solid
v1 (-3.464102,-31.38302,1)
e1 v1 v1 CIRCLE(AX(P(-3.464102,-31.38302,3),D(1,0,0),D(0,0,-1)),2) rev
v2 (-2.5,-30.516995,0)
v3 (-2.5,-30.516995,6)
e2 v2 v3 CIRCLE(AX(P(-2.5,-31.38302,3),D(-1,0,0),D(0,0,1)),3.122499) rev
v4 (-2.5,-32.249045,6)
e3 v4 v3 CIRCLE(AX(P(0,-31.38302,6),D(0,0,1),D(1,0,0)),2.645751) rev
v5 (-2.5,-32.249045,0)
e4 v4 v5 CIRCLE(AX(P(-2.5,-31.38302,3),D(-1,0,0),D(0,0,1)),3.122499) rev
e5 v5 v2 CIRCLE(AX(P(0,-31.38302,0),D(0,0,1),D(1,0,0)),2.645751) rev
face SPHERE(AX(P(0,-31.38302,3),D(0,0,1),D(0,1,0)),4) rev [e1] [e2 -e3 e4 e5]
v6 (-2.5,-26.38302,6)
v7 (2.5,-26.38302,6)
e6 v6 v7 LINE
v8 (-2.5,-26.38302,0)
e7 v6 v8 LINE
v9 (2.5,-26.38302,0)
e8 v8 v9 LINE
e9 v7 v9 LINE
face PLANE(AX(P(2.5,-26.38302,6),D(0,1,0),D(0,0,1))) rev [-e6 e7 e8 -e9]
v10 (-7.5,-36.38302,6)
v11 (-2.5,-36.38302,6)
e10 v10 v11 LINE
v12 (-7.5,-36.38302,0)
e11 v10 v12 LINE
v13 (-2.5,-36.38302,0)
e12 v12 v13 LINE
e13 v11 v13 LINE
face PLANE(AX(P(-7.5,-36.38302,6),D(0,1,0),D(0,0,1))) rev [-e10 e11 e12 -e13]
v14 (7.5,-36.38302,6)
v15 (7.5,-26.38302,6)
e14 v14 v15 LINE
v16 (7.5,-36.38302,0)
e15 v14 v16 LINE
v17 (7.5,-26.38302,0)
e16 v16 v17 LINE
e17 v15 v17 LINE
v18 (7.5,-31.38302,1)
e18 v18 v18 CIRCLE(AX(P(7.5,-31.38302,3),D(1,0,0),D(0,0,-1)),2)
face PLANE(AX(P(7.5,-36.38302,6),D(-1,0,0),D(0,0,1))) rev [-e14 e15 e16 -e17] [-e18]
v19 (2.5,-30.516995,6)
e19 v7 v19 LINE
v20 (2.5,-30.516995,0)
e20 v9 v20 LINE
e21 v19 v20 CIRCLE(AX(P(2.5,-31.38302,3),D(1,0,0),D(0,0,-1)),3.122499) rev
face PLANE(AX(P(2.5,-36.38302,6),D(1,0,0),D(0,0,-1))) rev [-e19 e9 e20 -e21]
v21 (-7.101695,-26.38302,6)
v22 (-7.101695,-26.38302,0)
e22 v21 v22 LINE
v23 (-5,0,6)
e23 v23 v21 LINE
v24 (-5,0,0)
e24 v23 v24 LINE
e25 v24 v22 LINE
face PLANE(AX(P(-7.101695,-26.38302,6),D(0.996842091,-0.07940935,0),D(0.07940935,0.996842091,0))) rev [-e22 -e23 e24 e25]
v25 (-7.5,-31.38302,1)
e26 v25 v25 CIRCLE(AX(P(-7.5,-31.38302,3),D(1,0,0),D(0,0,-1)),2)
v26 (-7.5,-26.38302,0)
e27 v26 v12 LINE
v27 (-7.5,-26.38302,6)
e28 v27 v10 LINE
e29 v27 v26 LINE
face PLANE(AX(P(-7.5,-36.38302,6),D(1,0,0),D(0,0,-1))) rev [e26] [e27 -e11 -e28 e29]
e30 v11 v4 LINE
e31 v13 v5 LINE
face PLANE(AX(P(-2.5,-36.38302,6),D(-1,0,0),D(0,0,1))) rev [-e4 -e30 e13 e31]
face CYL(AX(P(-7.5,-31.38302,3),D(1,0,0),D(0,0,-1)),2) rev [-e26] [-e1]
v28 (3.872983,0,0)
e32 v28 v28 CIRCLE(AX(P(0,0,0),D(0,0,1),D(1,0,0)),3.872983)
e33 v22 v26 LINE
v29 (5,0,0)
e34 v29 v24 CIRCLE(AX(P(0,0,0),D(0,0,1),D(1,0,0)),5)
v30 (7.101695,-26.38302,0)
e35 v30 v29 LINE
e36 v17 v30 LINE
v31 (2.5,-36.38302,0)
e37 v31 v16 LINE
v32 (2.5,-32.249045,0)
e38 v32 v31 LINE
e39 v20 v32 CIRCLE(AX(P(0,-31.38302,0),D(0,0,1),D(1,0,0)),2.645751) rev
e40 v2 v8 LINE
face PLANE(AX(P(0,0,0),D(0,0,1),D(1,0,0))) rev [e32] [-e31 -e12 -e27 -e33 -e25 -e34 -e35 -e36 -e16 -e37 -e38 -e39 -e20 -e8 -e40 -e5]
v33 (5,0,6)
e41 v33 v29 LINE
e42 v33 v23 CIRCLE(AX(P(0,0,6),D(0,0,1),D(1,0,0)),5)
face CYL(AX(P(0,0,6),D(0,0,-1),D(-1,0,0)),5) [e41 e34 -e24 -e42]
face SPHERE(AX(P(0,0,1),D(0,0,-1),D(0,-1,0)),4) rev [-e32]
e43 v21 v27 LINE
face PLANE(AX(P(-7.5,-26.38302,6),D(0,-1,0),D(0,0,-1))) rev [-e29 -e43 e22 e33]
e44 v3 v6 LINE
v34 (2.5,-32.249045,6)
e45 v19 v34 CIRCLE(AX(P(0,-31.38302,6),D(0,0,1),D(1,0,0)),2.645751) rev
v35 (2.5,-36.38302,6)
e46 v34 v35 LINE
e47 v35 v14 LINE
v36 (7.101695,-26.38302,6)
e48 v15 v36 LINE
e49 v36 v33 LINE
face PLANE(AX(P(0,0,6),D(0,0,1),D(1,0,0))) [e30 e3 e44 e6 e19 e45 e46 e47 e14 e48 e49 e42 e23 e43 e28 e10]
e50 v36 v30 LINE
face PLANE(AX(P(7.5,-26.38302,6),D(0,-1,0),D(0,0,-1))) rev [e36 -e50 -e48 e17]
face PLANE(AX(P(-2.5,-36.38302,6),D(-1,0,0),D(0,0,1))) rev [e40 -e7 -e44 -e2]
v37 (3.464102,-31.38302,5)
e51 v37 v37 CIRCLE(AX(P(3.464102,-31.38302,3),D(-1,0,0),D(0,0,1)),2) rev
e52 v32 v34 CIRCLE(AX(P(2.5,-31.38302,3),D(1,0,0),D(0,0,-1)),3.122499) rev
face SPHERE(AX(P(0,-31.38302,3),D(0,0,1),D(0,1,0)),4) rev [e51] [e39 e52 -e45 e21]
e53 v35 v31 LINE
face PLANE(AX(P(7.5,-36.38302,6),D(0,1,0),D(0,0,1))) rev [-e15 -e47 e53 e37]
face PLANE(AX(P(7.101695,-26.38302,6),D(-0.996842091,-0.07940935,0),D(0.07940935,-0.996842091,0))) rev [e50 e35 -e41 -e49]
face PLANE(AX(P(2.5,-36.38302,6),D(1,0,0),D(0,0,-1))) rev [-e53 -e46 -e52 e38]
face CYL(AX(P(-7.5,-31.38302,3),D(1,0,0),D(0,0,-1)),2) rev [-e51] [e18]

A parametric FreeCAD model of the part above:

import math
import FreeCAD as App
import Part
import Sketcher

V = App.Vector
Q = App.Units.Quantity

doc = App.newDocument("Part")
body = doc.addObject("PartDesign::Body", "Body")

sketch1 = body.newObject("Sketcher::SketchObject", "Sketch")
sketch1.AttachmentSupport = (doc.getObject("XY_Plane"), [""])
sketch1.MapMode = "FlatFace"
sketch1.addGeometry(Part.LineSegment(V(2.5, -36.38, 0), V(7.5, -36.38, 0)), False)
sketch1.addGeometry(Part.LineSegment(V(7.5, -36.38, 0), V(7.5, -26.38, 0)), False)
sketch1.addGeometry(Part.LineSegment(V(7.5, -26.38, 0), V(7.1, -26.38, 0)), False)
sketch1.addGeometry(Part.LineSegment(V(7.1, -26.38, 0), V(5, 0, 0)), False)
sketch1.addGeometry(Part.ArcOfCircle(Part.Circle(V(0, 0, 0), V(0, 0, 1), 5), math.radians(0), math.radians(180)), False)
sketch1.addGeometry(Part.LineSegment(V(-5, 0, 0), V(-7.1, -26.38, 0)), False)
sketch1.addGeometry(Part.LineSegment(V(-7.1, -26.38, 0), V(-7.5, -26.38, 0)), False)
sketch1.addGeometry(Part.LineSegment(V(-7.5, -26.38, 0), V(-7.5, -36.38, 0)), False)
sketch1.addGeometry(Part.LineSegment(V(-7.5, -36.38, 0), V(-2.5, -36.38, 0)), False)
sketch1.addGeometry(Part.LineSegment(V(-2.5, -36.38, 0), V(-2.5, -26.38, 0)), False)
sketch1.addGeometry(Part.LineSegment(V(-2.5, -26.38, 0), V(2.5, -26.38, 0)), False)
sketch1.addGeometry(Part.LineSegment(V(2.5, -26.38, 0), V(2.5, -36.38, 0)), False)
sketch1.addConstraint(Sketcher.Constraint("Coincident", 0, 2, 1, 1))
sketch1.addConstraint(Sketcher.Constraint("Coincident", 1, 2, 2, 1))
sketch1.addConstraint(Sketcher.Constraint("Coincident", 2, 2, 3, 1))
sketch1.addConstraint(Sketcher.Constraint("Coincident", 3, 2, 4, 1))
sketch1.addConstraint(Sketcher.Constraint("Coincident", 4, 2, 5, 1))
sketch1.addConstraint(Sketcher.Constraint("Coincident", 5, 2, 6, 1))
sketch1.addConstraint(Sketcher.Constraint("Coincident", 6, 2, 7, 1))
sketch1.addConstraint(Sketcher.Constraint("Coincident", 7, 2, 8, 1))
sketch1.addConstraint(Sketcher.Constraint("Coincident", 8, 2, 9, 1))
sketch1.addConstraint(Sketcher.Constraint("Coincident", 9, 2, 10, 1))
sketch1.addConstraint(Sketcher.Constraint("Coincident", 10, 2, 11, 1))
sketch1.addConstraint(Sketcher.Constraint("Coincident", 11, 2, 0, 1))
sketch1.addConstraint(Sketcher.Constraint("Horizontal", 0))
sketch1.addConstraint(Sketcher.Constraint("Vertical", 1))
sketch1.addConstraint(Sketcher.Constraint("Horizontal", 2))
sketch1.addConstraint(Sketcher.Constraint("Horizontal", 6))
sketch1.addConstraint(Sketcher.Constraint("Vertical", 7))
sketch1.addConstraint(Sketcher.Constraint("Horizontal", 8))
sketch1.addConstraint(Sketcher.Constraint("Vertical", 9))
sketch1.addConstraint(Sketcher.Constraint("Horizontal", 10))
sketch1.addConstraint(Sketcher.Constraint("Vertical", 11))
sketch1.addConstraint(Sketcher.Constraint("Coincident", 4, 3, -1, 1))
sketch1.addConstraint(Sketcher.Constraint("Symmetric", 2, 2, 5, 2, -2))
sketch1.addConstraint(Sketcher.Constraint("Symmetric", 0, 2, 7, 2, -2))
sketch1.addConstraint(Sketcher.Constraint("PointOnObject", 3, 2, -1))
sketch1.addConstraint(Sketcher.Constraint("PointOnObject", 4, 2, -1))
sketch1.addConstraint(Sketcher.Constraint("Horizontal", 6, 2, 9, 2))
sketch1.addConstraint(Sketcher.Constraint("Equal", 0, 8))
sketch1.addConstraint(Sketcher.Constraint("Equal", 8, 10))
sketch1.addConstraint(Sketcher.Constraint("Radius", 4, Q("5 mm")))
sketch1.addConstraint(Sketcher.Constraint("DistanceX", 0, 1, 0, 2, Q("5 mm")))
sketch1.addConstraint(Sketcher.Constraint("DistanceY", 1, 1, 1, 2, Q("10 mm")))
sketch1.addConstraint(Sketcher.Constraint("Distance", 3, Q("26.466599 mm")))
sketch1.addConstraint(Sketcher.Constraint("DistanceX", 2, 2, 2, 1, Q("0.398305 mm")))
pad1 = body.newObject("PartDesign::Pad", "Pad")
pad1.Profile = sketch1
pad1.Length = 6

sketch2 = body.newObject("Sketcher::SketchObject", "Sketch001")
sketch2.AttachmentSupport = (doc.getObject("YZ_Plane"), [""])
sketch2.MapMode = "FlatFace"
sketch2.addGeometry(Part.LineSegment(V(0, 5, 0), V(0, -3, 0)), False)
sketch2.addGeometry(Part.ArcOfCircle(Part.Circle(V(0, 1, 0), V(0, 0, 1), 4), math.radians(-90), math.radians(90)), False)
sketch2.addConstraint(Sketcher.Constraint("Coincident", 0, 1, 1, 2))
sketch2.addConstraint(Sketcher.Constraint("Coincident", 1, 1, 0, 2))
sketch2.addConstraint(Sketcher.Constraint("Vertical", 0))
sketch2.addConstraint(Sketcher.Constraint("PointOnObject", 1, 3, -2))
sketch2.addConstraint(Sketcher.Constraint("PointOnObject", 0, 1, -2))
sketch2.addConstraint(Sketcher.Constraint("Radius", 1, Q("4 mm")))
sketch2.addConstraint(Sketcher.Constraint("DistanceY", -1, 1, 1, 3, Q("1 mm")))
groove = body.newObject("PartDesign::Groove", "Groove")
groove.Profile = sketch2
groove.ReferenceAxis = (sketch2, ["V_Axis"])
groove.Angle = 360

sketch3 = body.newObject("Sketcher::SketchObject", "Sketch002")
sketch3.AttachmentSupport = (doc.getObject("YZ_Plane"), [""])
sketch3.MapMode = "FlatFace"
sketch3.AttachmentOffset = App.Placement(V(0, 0, 7.5), App.Rotation())
sketch3.addGeometry(Part.Circle(V(-31.4, 3, 0), V(0, 0, 1), 2), False)
sketch3.addConstraint(Sketcher.Constraint("Diameter", 0, Q("4 mm")))
sketch3.addConstraint(Sketcher.Constraint("DistanceY", -1, 1, 0, 3, Q("3 mm")))
sketch3.addConstraint(Sketcher.Constraint("DistanceX", 0, 3, -1, 1, Q("31.38302 mm")))
pocket1 = body.newObject("PartDesign::Pocket", "Pocket")
pocket1.Profile = sketch3
pocket1.Length = 15

sketch4 = body.newObject("Sketcher::SketchObject", "Sketch003")
sketch4.AttachmentSupport = (doc.getObject("YZ_Plane"), [""])
sketch4.MapMode = "FlatFace"
sketch4.addGeometry(Part.LineSegment(V(-31.4, 7, 0), V(-31.4, -1, 0)), False)
sketch4.addGeometry(Part.ArcOfCircle(Part.Circle(V(-31.4, 3, 0), V(0, 0, 1), 4), math.radians(-90), math.radians(90)), False)
sketch4.addGeometry(Part.LineSegment(V(-31.4, 7, 0), V(-31.4, -1, 0)), True)
sketch4.addConstraint(Sketcher.Constraint("Coincident", 0, 1, 1, 2))
sketch4.addConstraint(Sketcher.Constraint("Coincident", 1, 1, 0, 2))
sketch4.addConstraint(Sketcher.Constraint("Vertical", 0))
sketch4.addConstraint(Sketcher.Constraint("Vertical", 2))
sketch4.addConstraint(Sketcher.Constraint("Coincident", 2, 1, 0, 1))
sketch4.addConstraint(Sketcher.Constraint("Vertical", 1, 3, 0, 1))
sketch4.addConstraint(Sketcher.Constraint("Equal", 0, 2))
sketch4.addConstraint(Sketcher.Constraint("Radius", 1, Q("4 mm")))
sketch4.addConstraint(Sketcher.Constraint("DistanceY", -1, 1, 1, 3, Q("3 mm")))
sketch4.addConstraint(Sketcher.Constraint("DistanceX", 1, 3, -1, 1, Q("31.38302 mm")))
groove2 = body.newObject("PartDesign::Groove", "Groove001")
groove2.Profile = sketch4
groove2.ReferenceAxis = (sketch4, ["Axis0"])
groove2.Angle = 360

doc.recompute()
